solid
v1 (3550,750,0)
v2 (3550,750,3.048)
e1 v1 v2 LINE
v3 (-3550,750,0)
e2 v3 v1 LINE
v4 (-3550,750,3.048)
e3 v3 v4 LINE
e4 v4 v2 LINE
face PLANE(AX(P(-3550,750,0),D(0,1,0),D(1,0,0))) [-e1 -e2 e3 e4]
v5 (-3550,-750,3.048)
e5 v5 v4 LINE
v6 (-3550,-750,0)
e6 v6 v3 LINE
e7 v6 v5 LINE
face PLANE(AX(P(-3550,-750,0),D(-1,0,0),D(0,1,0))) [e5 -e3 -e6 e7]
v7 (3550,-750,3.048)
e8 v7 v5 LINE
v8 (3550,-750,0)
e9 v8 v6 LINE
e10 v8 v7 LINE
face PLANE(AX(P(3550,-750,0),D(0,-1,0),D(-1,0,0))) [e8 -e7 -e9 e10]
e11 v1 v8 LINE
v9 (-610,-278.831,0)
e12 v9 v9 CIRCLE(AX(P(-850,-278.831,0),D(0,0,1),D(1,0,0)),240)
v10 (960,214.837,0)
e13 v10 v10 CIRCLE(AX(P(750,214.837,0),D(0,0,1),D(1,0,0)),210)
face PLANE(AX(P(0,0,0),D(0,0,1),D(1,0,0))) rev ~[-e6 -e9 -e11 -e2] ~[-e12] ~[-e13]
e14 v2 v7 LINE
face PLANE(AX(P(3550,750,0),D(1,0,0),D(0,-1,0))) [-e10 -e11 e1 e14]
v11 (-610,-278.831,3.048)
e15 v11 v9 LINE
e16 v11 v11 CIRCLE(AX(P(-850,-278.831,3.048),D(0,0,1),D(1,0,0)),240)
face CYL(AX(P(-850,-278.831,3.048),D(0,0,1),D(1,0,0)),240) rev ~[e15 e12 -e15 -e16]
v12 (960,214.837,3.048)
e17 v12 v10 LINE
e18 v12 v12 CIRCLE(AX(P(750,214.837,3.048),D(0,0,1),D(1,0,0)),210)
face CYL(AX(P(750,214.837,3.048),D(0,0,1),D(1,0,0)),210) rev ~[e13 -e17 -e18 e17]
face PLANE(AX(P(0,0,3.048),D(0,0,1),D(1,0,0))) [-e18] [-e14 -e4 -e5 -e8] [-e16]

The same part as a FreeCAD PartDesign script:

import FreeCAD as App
import Part
import Sketcher
from FreeCAD import Vector
Q = App.Units.Quantity


def add_polygon(sketch, points):
    """Adds a closed chain of lines whose ends are joined by coincident constraints."""
    first, n = sketch.GeometryCount, len(points)
    for a, b in zip(points, points[1:] + points[:1]):
        sketch.addGeometry(Part.LineSegment(App.Vector(*a, 0), App.Vector(*b, 0)), False)
    for i in range(n):
        sketch.addConstraint(Sketcher.Constraint("Coincident", first + i, 2, first + (i + 1) % n, 1))

doc = App.newDocument("Part")
body = doc.addObject("PartDesign::Body", "Body")

# Sketch on XY plane
sketch1 = body.newObject("Sketcher::SketchObject", "Sketch")
sketch1.AttachmentSupport = (doc.getObject("XY_Plane"), [""])
sketch1.MapMode = "FlatFace"
add_polygon(sketch1, [(-3550, -750), (3550, -750), (3550, 750), (-3550, 750)])  # lines 0-3
sketch1.addConstraint([
    Sketcher.Constraint("Horizontal", 0),
    Sketcher.Constraint("Vertical", 1),
    Sketcher.Constraint("Horizontal", 2),
    Sketcher.Constraint("Vertical", 3),
    Sketcher.Constraint("Symmetric", 0, 2, 2, 2, -1, 1),
    Sketcher.Constraint("DistanceX", 0, 1, 0, 2, Q("7100 mm")),
    Sketcher.Constraint("DistanceY", 1, 1, 1, 2, Q("1500 mm")),
])
pad1 = body.newObject("PartDesign::Pad", "Pad")
pad1.Profile = sketch1
pad1.Length = 3.048

# Sketch on XY plane
sketch2 = body.newObject("Sketcher::SketchObject", "Sketch001")
sketch2.AttachmentSupport = (doc.getObject("XY_Plane"), [""])
sketch2.MapMode = "FlatFace"
sketch2.AttachmentOffset = App.Placement(Vector(0, 0, 3.048), App.Rotation())
sketch2.addGeometry([
    Part.Circle(Vector(750, 215, 0), Vector(0, 0, 1), 210),
    Part.Circle(Vector(-850, -279, 0), Vector(0, 0, 1), 240),
], False)
sketch2.addConstraint([
    Sketcher.Constraint("Diameter", 0, Q("420 mm")),
    Sketcher.Constraint("Diameter", 1, Q("480 mm")),
    Sketcher.Constraint("DistanceX", -1, 1, 0, 3, Q("750 mm")),
    Sketcher.Constraint("DistanceX", 1, 3, -1, 1, Q("850 mm")),
    Sketcher.Constraint("DistanceY", -1, 1, 0, 3, Q("214.837 mm")),
    Sketcher.Constraint("DistanceY", 1, 3, -1, 1, Q("278.831 mm")),
])
pocket1 = body.newObject("PartDesign::Pocket", "Pocket")
pocket1.Profile = sketch2
pocket1.Length = 3.048

doc.recompute()
